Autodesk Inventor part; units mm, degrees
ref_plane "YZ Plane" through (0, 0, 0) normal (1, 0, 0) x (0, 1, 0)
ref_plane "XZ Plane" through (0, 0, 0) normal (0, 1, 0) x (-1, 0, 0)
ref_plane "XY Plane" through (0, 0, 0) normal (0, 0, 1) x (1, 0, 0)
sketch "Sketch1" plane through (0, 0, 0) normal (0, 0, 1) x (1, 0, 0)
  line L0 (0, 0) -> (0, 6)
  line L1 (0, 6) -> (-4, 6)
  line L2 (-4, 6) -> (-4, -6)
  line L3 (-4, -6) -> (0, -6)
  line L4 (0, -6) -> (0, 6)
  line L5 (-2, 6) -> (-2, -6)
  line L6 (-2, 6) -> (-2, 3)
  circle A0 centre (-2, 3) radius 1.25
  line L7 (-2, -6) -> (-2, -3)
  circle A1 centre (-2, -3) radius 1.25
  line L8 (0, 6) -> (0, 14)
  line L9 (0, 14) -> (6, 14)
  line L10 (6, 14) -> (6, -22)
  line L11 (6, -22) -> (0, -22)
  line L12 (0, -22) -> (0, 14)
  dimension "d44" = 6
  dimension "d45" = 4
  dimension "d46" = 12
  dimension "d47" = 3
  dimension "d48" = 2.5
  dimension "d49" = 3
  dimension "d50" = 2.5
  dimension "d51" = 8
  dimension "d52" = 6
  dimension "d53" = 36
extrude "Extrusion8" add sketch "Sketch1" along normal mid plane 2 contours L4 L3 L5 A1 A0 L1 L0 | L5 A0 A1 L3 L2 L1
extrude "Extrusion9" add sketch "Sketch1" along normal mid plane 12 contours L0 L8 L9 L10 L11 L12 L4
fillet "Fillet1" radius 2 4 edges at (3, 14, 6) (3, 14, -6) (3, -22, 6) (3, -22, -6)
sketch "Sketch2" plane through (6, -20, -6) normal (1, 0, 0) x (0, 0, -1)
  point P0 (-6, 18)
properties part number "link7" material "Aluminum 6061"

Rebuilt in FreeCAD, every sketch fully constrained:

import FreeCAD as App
import Part
import Sketcher
Q = App.Units.Quantity


def edges_at(feature, points):
    """Names of the edges that pass closest to the given points."""
    edges = feature.Shape.Edges
    near = lambda p: min(range(len(edges)), key=lambda i: edges[i].distToShape(Part.Vertex(*p))[0])
    return sorted({f"Edge{near(p) + 1}" for p in points})

doc = App.newDocument("Part")
body = doc.addObject("PartDesign::Body", "Body")

sketch1 = body.newObject("Sketcher::SketchObject", "Sketch")
sketch1.AttachmentSupport = (doc.getObject("XY_Plane"), [""])
sketch1.MapMode = "FlatFace"
sketch1.addGeometry([
    Part.LineSegment(App.Vector(0, -6, 0), App.Vector(0, 6, 0)),
    Part.LineSegment(App.Vector(0, 6, 0), App.Vector(-4, 6, 0)),
    Part.LineSegment(App.Vector(-4, 6, 0), App.Vector(-4, -6, 0)),
    Part.LineSegment(App.Vector(-4, -6, 0), App.Vector(0, -6, 0)),
    Part.Circle(App.Vector(-2, -3, 0), App.Vector(0, 0, 1), 1.2),
    Part.Circle(App.Vector(-2, 3, 0), App.Vector(0, 0, 1), 1.2),
], False)
sketch1.addConstraint([
    Sketcher.Constraint("Coincident", 0, 2, 1, 1),
    Sketcher.Constraint("Coincident", 1, 2, 2, 1),
    Sketcher.Constraint("Coincident", 2, 2, 3, 1),
    Sketcher.Constraint("Coincident", 3, 2, 0, 1),
    Sketcher.Constraint("Vertical", 0),
    Sketcher.Constraint("Horizontal", 1),
    Sketcher.Constraint("Vertical", 2),
    Sketcher.Constraint("Horizontal", 3),
    Sketcher.Constraint("Equal", 4, 5),
    Sketcher.Constraint("Symmetric", 0, 2, 3, 2, -1, 1),
    Sketcher.Constraint("Symmetric", 4, 3, 5, 3, -1),
    Sketcher.Constraint("Diameter", 4, Q("2.5 mm")),
    Sketcher.Constraint("DistanceX", 1, 2, 1, 1, Q("4 mm")),
    Sketcher.Constraint("DistanceY", 0, 1, 0, 2, Q("12 mm")),
    Sketcher.Constraint("DistanceY", 4, 3, -1, 1, Q("3 mm")),
    Sketcher.Constraint("DistanceX", 4, 3, -1, 1, Q("2 mm")),
])
pad1 = body.newObject("PartDesign::Pad", "Pad")
pad1.Profile = sketch1
pad1.Length = 2
pad1.Midplane = True

sketch2 = body.newObject("Sketcher::SketchObject", "Sketch001")
sketch2.AttachmentSupport = (doc.getObject("XY_Plane"), [""])
sketch2.MapMode = "FlatFace"
sketch2.addGeometry([
    Part.LineSegment(App.Vector(0, 14, 0), App.Vector(0, -22, 0)),
    Part.LineSegment(App.Vector(0, -22, 0), App.Vector(6, -22, 0)),
    Part.LineSegment(App.Vector(6, -22, 0), App.Vector(6, 14, 0)),
    Part.LineSegment(App.Vector(6, 14, 0), App.Vector(0, 14, 0)),
], False)
sketch2.addConstraint([
    Sketcher.Constraint("Coincident", 0, 2, 1, 1),
    Sketcher.Constraint("Coincident", 1, 2, 2, 1),
    Sketcher.Constraint("Coincident", 2, 2, 3, 1),
    Sketcher.Constraint("Coincident", 3, 2, 0, 1),
    Sketcher.Constraint("Vertical", 0),
    Sketcher.Constraint("Horizontal", 1),
    Sketcher.Constraint("Vertical", 2),
    Sketcher.Constraint("Horizontal", 3),
    Sketcher.Constraint("PointOnObject", 0, 2, -2),
    Sketcher.Constraint("DistanceX", 1, 1, 1, 2, Q("6 mm")),
    Sketcher.Constraint("DistanceY", 0, 2, 0, 1, Q("36 mm")),
    Sketcher.Constraint("DistanceY", 0, 2, -1, 1, Q("22 mm")),
])
pad2 = body.newObject("PartDesign::Pad", "Pad001")
pad2.Profile = sketch2
pad2.Length = 12
pad2.Midplane = True
doc.recompute()

fillet = body.newObject("PartDesign::Fillet", "Fillet")
fillet.Base = (pad2, edges_at(pad2, [
    (3, 14, 6),
    (3, 14, -6),
    (3, -22, 6),
    (3, -22, -6),
]))
fillet.Radius = 2

doc.recompute()
